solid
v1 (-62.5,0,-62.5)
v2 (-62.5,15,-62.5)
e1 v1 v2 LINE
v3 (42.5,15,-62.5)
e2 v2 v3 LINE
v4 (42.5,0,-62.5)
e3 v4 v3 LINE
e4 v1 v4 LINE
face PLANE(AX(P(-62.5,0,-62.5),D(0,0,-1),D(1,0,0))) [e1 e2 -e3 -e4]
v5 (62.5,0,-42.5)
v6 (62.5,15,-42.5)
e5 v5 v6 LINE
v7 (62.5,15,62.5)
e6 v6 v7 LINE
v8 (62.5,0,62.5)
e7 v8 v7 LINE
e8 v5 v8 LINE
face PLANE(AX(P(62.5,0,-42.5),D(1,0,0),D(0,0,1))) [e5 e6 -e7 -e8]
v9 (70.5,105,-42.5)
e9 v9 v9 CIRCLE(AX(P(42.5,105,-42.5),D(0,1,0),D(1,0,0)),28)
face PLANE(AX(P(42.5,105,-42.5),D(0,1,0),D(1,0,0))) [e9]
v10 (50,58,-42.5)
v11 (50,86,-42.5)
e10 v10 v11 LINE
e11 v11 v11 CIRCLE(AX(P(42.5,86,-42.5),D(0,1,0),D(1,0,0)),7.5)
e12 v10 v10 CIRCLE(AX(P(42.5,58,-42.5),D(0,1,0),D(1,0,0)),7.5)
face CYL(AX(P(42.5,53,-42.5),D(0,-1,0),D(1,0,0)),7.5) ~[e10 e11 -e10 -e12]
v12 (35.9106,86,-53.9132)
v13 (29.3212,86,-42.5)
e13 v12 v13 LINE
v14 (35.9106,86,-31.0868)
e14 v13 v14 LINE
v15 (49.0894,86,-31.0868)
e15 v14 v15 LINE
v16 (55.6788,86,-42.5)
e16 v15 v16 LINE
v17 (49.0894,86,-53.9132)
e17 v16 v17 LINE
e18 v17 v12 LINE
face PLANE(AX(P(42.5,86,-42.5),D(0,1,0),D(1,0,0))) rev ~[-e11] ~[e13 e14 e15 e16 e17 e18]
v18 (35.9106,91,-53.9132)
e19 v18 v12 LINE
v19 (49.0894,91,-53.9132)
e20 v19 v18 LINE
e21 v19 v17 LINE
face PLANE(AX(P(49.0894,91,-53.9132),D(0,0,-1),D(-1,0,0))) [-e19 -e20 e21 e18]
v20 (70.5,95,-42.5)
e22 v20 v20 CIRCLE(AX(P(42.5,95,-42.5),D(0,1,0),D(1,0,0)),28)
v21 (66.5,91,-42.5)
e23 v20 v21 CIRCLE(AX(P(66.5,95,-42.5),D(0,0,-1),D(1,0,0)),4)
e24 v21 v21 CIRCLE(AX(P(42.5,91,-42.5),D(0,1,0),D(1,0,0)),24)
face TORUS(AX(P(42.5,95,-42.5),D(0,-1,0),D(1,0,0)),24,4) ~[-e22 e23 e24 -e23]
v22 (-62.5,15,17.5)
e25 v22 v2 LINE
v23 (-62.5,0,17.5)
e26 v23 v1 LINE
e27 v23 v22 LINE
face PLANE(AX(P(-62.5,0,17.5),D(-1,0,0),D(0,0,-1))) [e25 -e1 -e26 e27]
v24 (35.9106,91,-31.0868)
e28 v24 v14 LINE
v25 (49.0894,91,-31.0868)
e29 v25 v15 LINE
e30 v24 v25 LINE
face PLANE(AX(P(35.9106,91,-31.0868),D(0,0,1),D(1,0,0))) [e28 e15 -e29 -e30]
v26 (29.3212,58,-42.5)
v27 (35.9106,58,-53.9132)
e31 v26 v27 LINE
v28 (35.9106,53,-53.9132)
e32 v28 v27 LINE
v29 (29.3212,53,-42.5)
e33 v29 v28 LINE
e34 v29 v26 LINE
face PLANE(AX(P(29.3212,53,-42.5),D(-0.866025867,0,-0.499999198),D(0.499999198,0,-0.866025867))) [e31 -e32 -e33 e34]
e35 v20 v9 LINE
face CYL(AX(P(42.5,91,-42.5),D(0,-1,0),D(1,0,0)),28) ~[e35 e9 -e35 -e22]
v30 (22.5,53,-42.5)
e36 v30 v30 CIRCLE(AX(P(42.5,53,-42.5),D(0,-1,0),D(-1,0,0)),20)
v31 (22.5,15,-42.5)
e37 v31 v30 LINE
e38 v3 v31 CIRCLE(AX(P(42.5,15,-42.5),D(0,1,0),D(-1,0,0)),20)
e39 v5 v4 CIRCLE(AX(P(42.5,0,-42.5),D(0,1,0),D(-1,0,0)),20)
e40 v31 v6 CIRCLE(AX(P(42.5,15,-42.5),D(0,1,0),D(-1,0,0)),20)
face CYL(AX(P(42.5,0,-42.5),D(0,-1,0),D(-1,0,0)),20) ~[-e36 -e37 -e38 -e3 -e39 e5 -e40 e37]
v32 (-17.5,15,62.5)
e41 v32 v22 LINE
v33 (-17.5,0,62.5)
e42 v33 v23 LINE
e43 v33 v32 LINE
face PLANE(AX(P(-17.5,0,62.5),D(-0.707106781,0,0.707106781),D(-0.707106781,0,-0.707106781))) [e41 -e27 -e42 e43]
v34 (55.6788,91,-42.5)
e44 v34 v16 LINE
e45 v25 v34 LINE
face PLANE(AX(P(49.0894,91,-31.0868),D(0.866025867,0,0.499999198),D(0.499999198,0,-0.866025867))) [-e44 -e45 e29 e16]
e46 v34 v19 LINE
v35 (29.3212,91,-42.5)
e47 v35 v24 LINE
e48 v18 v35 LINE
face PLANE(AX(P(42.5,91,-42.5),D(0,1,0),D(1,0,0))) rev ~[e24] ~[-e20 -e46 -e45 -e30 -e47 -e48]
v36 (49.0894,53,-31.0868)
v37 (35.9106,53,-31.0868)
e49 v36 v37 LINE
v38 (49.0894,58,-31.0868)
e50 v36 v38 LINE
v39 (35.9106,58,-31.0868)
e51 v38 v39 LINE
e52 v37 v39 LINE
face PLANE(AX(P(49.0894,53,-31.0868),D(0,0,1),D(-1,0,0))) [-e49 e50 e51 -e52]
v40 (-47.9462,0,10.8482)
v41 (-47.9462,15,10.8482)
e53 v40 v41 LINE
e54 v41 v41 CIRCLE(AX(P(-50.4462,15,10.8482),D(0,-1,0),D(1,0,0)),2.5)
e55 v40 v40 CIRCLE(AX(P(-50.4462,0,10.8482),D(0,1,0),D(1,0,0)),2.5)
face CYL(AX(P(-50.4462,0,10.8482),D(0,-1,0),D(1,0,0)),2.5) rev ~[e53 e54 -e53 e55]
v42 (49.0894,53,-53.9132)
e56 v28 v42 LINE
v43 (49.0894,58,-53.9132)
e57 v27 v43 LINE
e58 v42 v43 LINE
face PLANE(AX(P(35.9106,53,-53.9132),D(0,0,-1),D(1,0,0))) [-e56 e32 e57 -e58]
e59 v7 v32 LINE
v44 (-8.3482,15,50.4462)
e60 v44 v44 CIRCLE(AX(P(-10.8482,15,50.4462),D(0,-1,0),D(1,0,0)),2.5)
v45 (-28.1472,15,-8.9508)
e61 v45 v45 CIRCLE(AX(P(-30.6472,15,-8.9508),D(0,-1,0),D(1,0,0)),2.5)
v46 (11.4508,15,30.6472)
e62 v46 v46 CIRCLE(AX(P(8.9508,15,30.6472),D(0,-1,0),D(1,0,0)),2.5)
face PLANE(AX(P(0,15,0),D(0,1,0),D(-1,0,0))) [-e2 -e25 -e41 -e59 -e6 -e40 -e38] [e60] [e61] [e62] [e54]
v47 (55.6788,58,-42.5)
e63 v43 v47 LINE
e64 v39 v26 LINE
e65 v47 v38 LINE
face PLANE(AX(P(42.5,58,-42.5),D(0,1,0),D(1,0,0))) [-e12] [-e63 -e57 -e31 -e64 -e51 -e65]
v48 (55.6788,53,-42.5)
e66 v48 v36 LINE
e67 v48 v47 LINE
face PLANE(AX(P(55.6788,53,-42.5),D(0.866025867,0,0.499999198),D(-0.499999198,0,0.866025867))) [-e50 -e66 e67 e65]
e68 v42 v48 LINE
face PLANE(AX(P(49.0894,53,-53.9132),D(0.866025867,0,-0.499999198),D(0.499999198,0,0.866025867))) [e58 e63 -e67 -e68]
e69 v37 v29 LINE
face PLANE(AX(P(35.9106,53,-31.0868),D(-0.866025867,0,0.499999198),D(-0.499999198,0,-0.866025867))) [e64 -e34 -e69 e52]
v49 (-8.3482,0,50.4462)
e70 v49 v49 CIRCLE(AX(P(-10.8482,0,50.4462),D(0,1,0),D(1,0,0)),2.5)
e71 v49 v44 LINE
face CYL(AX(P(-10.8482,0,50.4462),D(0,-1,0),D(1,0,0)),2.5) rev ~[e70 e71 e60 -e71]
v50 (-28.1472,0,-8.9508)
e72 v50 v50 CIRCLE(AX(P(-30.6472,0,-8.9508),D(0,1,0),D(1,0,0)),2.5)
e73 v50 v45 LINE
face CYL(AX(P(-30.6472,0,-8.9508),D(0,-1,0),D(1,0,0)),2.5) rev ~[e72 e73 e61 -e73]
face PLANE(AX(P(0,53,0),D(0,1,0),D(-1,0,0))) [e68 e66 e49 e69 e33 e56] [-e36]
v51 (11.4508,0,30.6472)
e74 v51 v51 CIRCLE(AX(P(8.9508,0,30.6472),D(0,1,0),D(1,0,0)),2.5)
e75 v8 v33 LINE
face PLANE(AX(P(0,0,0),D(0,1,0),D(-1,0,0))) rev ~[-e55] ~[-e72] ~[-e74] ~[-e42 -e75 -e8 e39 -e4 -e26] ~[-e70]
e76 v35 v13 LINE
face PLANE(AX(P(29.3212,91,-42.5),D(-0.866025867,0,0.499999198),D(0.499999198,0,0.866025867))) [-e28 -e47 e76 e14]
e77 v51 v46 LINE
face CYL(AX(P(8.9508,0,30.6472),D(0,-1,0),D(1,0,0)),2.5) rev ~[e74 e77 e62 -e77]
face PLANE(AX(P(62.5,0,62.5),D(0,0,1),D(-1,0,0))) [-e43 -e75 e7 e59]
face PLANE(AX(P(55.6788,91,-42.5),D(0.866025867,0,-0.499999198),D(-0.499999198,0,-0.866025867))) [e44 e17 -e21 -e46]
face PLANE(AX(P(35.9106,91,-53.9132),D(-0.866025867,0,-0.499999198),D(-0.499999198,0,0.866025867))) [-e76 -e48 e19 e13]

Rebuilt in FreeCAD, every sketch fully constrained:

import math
import FreeCAD as App
import Part
import Sketcher

V = App.Vector
Q = App.Units.Quantity


def edges_at(feature, points):
    """Names of the edges that pass closest to the given points."""
    edges = feature.Shape.Edges
    near = lambda p: min(range(len(edges)), key=lambda i: edges[i].distToShape(Part.Vertex(*p))[0])
    return sorted({f"Edge{near(p) + 1}" for p in points})

doc = App.newDocument("Part")
body = doc.addObject("PartDesign::Body", "Body")

# Sketch on XZ plane
sketch1 = doc.addObject("Sketcher::SketchObject", "Sketch")
body.addObject(sketch1)
sketch1.AttachmentSupport = (doc.XZ_Plane, [""])
sketch1.MapMode = "FlatFace"
sketch1.addGeometry([
    Part.LineSegment(V(42, -62, 0), V(-62, -62, 0)),  # 0
    Part.LineSegment(V(-62, -62, 0), V(-62, 18, 0)),  # 1
    Part.LineSegment(V(-62, 18, 0), V(-18, 62, 0)),  # 2
    Part.LineSegment(V(-18, 62, 0), V(62, 62, 0)),  # 3
    Part.LineSegment(V(62, 62, 0), V(62, -42, 0)),  # 4
    Part.ArcOfCircle(Part.Circle(V(42, -42, 0), V(0, 0, 1), 20), math.radians(0), math.radians(270)),  # 5
], False)
sketch1.addConstraint([
    Sketcher.Constraint("Coincident", 0, 2, 1, 1),
    Sketcher.Constraint("Coincident", 1, 2, 2, 1),
    Sketcher.Constraint("Coincident", 2, 2, 3, 1),
    Sketcher.Constraint("Coincident", 3, 2, 4, 1),
    Sketcher.Constraint("Tangent", 4, 2, 5, 1),
    Sketcher.Constraint("Tangent", 5, 2, 0, 1),
    Sketcher.Constraint("Horizontal", 0),
    Sketcher.Constraint("Vertical", 1),
    Sketcher.Constraint("Horizontal", 3),
    Sketcher.Constraint("Vertical", 4),
    Sketcher.Constraint("Symmetric", 0, 2, 3, 2, -1, 1),
    Sketcher.Constraint("Equal", 3, 1),
    Sketcher.Constraint("Equal", 0, 4),
    Sketcher.Constraint("Radius", 5, 20.0),
    Sketcher.Constraint("DistanceX", 3, 1, 3, 2, 80.0),
    Sketcher.Constraint("DistanceY", 0, 2, 2, 2, 125.0),
])
pad1 = doc.addObject("PartDesign::Pad", "Pad")
body.addObject(pad1)
pad1.Profile = sketch1
pad1.Length = 15
pad1.Reversed = True

# Sketch on XZ plane
sketch2 = doc.addObject("Sketcher::SketchObject", "Sketch001")
body.addObject(sketch2)
sketch2.AttachmentSupport = (doc.XZ_Plane, [""])
sketch2.MapMode = "FlatFace"
sketch2.addGeometry(Part.Circle(V(42, -42, 0), V(0, 0, 1), 20), False)
sketch2.addConstraint([
    Sketcher.Constraint("Diameter", 0, 40.0),
    Sketcher.Constraint("DistanceX", -1, 1, 0, 3, 42.5),
    Sketcher.Constraint("DistanceY", 0, 3, -1, 1, 42.5),
])
pad2 = doc.addObject("PartDesign::Pad", "Pad001")
body.addObject(pad2)
pad2.Profile = sketch2
pad2.Length = 53
pad2.Reversed = True

# Sketch on XZ plane
sketch3 = doc.addObject("Sketcher::SketchObject", "Sketch002")
body.addObject(sketch3)
sketch3.AttachmentSupport = (doc.XZ_Plane, [""])
sketch3.MapMode = "FlatFace"
sketch3.AttachmentOffset = App.Placement(V(0, 0, -53), App.Rotation())
sketch3.addGeometry(Part.Circle(V(42, -42, 0), V(0, 0, 1), 8), False)
sketch3.addConstraint([
    Sketcher.Constraint("Diameter", 0, 15.0),
    Sketcher.Constraint("DistanceX", -1, 1, 0, 3, 42.5),
    Sketcher.Constraint("DistanceY", 0, 3, -1, 1, 42.5),
])
pad3 = doc.addObject("PartDesign::Pad", "Pad002")
body.addObject(pad3)
pad3.Profile = sketch3
pad3.Length = 38
pad3.Reversed = True

# Sketch on XZ plane
sketch4 = doc.addObject("Sketcher::SketchObject", "Sketch003")
body.addObject(sketch4)
sketch4.AttachmentSupport = (doc.XZ_Plane, [""])
sketch4.MapMode = "FlatFace"
sketch4.AttachmentOffset = App.Placement(V(0, 0, -53), App.Rotation())
sketch4.addGeometry([
    Part.LineSegment(V(49, -31, 0), V(56, -42, 0)),  # 0
    Part.LineSegment(V(56, -42, 0), V(49, -54, 0)),  # 1
    Part.LineSegment(V(49, -54, 0), V(36, -54, 0)),  # 2
    Part.LineSegment(V(36, -54, 0), V(29, -42, 0)),  # 3
    Part.LineSegment(V(29, -42, 0), V(36, -31, 0)),  # 4
    Part.LineSegment(V(36, -31, 0), V(49, -31, 0)),  # 5
    Part.Circle(V(42, -42, 0), V(0, 0, 1), 8),  # 6
], False)
sketch4.addConstraint([
    Sketcher.Constraint("Coincident", 0, 2, 1, 1),
    Sketcher.Constraint("Coincident", 1, 2, 2, 1),
    Sketcher.Constraint("Coincident", 2, 2, 3, 1),
    Sketcher.Constraint("Coincident", 3, 2, 4, 1),
    Sketcher.Constraint("Coincident", 4, 2, 5, 1),
    Sketcher.Constraint("Coincident", 5, 2, 0, 1),
    Sketcher.Constraint("Horizontal", 2),
    Sketcher.Constraint("Horizontal", 5),
    Sketcher.Constraint("Parallel", 0, 3),
    Sketcher.Constraint("Parallel", 1, 4),
    Sketcher.Constraint("Horizontal", 6, 3, 0, 2),
    Sketcher.Constraint("Horizontal", 0, 2, 3, 2),
    Sketcher.Constraint("Vertical", 2, 2, 4, 2),
    Sketcher.Constraint("Vertical", 1, 2, 5, 2),
    Sketcher.Constraint("Diameter", 6, 15.0),
    Sketcher.Constraint("Angle", 0, Q("-60 deg")),
    Sketcher.Constraint("DistanceX", -1, 1, 6, 3, 42.5),
    Sketcher.Constraint("DistanceY", 6, 3, -1, 1, 42.5),
    Sketcher.Constraint("DistanceX", 2, 2, 2, 1, 13.1788),
    Sketcher.Constraint("Distance", 0, 13.1788),
    Sketcher.Constraint("DistanceX", -1, 1, 0, 2, 55.6788),
])
pad4 = doc.addObject("PartDesign::Pad", "Pad003")
body.addObject(pad4)
pad4.Profile = sketch4
pad4.Length = 5
pad4.Reversed = True

# Sketch on XZ plane
sketch5 = doc.addObject("Sketcher::SketchObject", "Sketch004")
body.addObject(sketch5)
sketch5.AttachmentSupport = (doc.XZ_Plane, [""])
sketch5.MapMode = "FlatFace"
sketch5.AttachmentOffset = App.Placement(V(0, 0, -91), App.Rotation())
sketch5.addGeometry([
    Part.LineSegment(V(36, -31, 0), V(49, -31, 0)),  # 0
    Part.LineSegment(V(49, -31, 0), V(56, -42, 0)),  # 1
    Part.LineSegment(V(56, -42, 0), V(49, -54, 0)),  # 2
    Part.LineSegment(V(49, -54, 0), V(36, -54, 0)),  # 3
    Part.LineSegment(V(36, -54, 0), V(29, -42, 0)),  # 4
    Part.LineSegment(V(29, -42, 0), V(36, -31, 0)),  # 5
    Part.Circle(V(42, -42, 0), V(0, 0, 1), 8),  # 6
], False)
sketch5.addConstraint([
    Sketcher.Constraint("Coincident", 0, 2, 1, 1),
    Sketcher.Constraint("Coincident", 1, 2, 2, 1),
    Sketcher.Constraint("Coincident", 2, 2, 3, 1),
    Sketcher.Constraint("Coincident", 3, 2, 4, 1),
    Sketcher.Constraint("Coincident", 4, 2, 5, 1),
    Sketcher.Constraint("Coincident", 5, 2, 0, 1),
    Sketcher.Constraint("Horizontal", 0),
    Sketcher.Constraint("Horizontal", 3),
    Sketcher.Constraint("Parallel", 1, 4),
    Sketcher.Constraint("Parallel", 2, 5),
    Sketcher.Constraint("Horizontal", 6, 3, 1, 2),
    Sketcher.Constraint("Horizontal", 1, 2, 4, 2),
    Sketcher.Constraint("Vertical", 0, 2, 2, 2),
    Sketcher.Constraint("Vertical", 3, 2, 5, 2),
    Sketcher.Constraint("Diameter", 6, 15.0),
    Sketcher.Constraint("Angle", 1, Q("-60 deg")),
    Sketcher.Constraint("DistanceX", -1, 1, 6, 3, 42.5),
    Sketcher.Constraint("DistanceY", 6, 3, -1, 1, 42.5),
    Sketcher.Constraint("DistanceX", 0, 1, 0, 2, 13.1788),
    Sketcher.Constraint("Distance", 1, 13.1788),
    Sketcher.Constraint("DistanceX", -1, 1, 0, 2, 49.0894),
])
pad5 = doc.addObject("PartDesign::Pad", "Pad004")
body.addObject(pad5)
pad5.Profile = sketch5
pad5.Length = 5

# Sketch on XZ plane
sketch6 = doc.addObject("Sketcher::SketchObject", "Sketch005")
body.addObject(sketch6)
sketch6.AttachmentSupport = (doc.XZ_Plane, [""])
sketch6.MapMode = "FlatFace"
sketch6.AttachmentOffset = App.Placement(V(0, 0, -91), App.Rotation())
sketch6.addGeometry(Part.Circle(V(42, -42, 0), V(0, 0, 1), 28), False)
sketch6.addConstraint([
    Sketcher.Constraint("Diameter", 0, 56.0),
    Sketcher.Constraint("DistanceX", -1, 1, 0, 3, 42.5),
    Sketcher.Constraint("DistanceY", 0, 3, -1, 1, 42.5),
])
pad6 = doc.addObject("PartDesign::Pad", "Pad005")
body.addObject(pad6)
pad6.Profile = sketch6
pad6.Length = 14
pad6.Reversed = True
doc.recompute()

fillet = doc.addObject("PartDesign::Fillet", "Fillet")
body.addObject(fillet)
fillet.Base = (pad6, edges_at(pad6, [(14.5, 91, -42.5)]))
fillet.Radius = 4

# Sketch on XZ plane
sketch7 = doc.addObject("Sketcher::SketchObject", "Sketch006")
body.addObject(sketch7)
sketch7.AttachmentSupport = (doc.XZ_Plane, [""])
sketch7.MapMode = "FlatFace"
sketch7.addGeometry([
    Part.Circle(V(-50.4, 10.8, 0), V(0, 0, 1), 2.5),
    Part.Circle(V(-10.8, 50.4, 0), V(0, 0, 1), 2.5),
    Part.Circle(V(-30.6, -9, 0), V(0, 0, 1), 2.5),
    Part.Circle(V(9, 30.6, 0), V(0, 0, 1), 2.5),
], False)
sketch7.addConstraint([
    Sketcher.Constraint("Equal", 0, 1),
    Sketcher.Constraint("Equal", 1, 2),
    Sketcher.Constraint("Equal", 2, 3),
    Sketcher.Constraint("Diameter", 0, 5.0),
    Sketcher.Constraint("DistanceX", 0, 3, 1, 3, 39.598),
    Sketcher.Constraint("DistanceY", 0, 3, 1, 3, 39.598),
    Sketcher.Constraint("DistanceX", 0, 3, 2, 3, 19.799),
    Sketcher.Constraint("DistanceY", 2, 3, 0, 3, 19.799),
    Sketcher.Constraint("DistanceX", 1, 3, 3, 3, 19.799),
    Sketcher.Constraint("DistanceY", 3, 3, 1, 3, 19.799),
    Sketcher.Constraint("DistanceX", 0, 3, -1, 1, 50.4462),
    Sketcher.Constraint("DistanceY", -1, 1, 0, 3, 10.8482),
])
pocket1 = doc.addObject("PartDesign::Pocket", "Pocket")
body.addObject(pocket1)
pocket1.Profile = sketch7
pocket1.Length = 15

doc.recompute()
